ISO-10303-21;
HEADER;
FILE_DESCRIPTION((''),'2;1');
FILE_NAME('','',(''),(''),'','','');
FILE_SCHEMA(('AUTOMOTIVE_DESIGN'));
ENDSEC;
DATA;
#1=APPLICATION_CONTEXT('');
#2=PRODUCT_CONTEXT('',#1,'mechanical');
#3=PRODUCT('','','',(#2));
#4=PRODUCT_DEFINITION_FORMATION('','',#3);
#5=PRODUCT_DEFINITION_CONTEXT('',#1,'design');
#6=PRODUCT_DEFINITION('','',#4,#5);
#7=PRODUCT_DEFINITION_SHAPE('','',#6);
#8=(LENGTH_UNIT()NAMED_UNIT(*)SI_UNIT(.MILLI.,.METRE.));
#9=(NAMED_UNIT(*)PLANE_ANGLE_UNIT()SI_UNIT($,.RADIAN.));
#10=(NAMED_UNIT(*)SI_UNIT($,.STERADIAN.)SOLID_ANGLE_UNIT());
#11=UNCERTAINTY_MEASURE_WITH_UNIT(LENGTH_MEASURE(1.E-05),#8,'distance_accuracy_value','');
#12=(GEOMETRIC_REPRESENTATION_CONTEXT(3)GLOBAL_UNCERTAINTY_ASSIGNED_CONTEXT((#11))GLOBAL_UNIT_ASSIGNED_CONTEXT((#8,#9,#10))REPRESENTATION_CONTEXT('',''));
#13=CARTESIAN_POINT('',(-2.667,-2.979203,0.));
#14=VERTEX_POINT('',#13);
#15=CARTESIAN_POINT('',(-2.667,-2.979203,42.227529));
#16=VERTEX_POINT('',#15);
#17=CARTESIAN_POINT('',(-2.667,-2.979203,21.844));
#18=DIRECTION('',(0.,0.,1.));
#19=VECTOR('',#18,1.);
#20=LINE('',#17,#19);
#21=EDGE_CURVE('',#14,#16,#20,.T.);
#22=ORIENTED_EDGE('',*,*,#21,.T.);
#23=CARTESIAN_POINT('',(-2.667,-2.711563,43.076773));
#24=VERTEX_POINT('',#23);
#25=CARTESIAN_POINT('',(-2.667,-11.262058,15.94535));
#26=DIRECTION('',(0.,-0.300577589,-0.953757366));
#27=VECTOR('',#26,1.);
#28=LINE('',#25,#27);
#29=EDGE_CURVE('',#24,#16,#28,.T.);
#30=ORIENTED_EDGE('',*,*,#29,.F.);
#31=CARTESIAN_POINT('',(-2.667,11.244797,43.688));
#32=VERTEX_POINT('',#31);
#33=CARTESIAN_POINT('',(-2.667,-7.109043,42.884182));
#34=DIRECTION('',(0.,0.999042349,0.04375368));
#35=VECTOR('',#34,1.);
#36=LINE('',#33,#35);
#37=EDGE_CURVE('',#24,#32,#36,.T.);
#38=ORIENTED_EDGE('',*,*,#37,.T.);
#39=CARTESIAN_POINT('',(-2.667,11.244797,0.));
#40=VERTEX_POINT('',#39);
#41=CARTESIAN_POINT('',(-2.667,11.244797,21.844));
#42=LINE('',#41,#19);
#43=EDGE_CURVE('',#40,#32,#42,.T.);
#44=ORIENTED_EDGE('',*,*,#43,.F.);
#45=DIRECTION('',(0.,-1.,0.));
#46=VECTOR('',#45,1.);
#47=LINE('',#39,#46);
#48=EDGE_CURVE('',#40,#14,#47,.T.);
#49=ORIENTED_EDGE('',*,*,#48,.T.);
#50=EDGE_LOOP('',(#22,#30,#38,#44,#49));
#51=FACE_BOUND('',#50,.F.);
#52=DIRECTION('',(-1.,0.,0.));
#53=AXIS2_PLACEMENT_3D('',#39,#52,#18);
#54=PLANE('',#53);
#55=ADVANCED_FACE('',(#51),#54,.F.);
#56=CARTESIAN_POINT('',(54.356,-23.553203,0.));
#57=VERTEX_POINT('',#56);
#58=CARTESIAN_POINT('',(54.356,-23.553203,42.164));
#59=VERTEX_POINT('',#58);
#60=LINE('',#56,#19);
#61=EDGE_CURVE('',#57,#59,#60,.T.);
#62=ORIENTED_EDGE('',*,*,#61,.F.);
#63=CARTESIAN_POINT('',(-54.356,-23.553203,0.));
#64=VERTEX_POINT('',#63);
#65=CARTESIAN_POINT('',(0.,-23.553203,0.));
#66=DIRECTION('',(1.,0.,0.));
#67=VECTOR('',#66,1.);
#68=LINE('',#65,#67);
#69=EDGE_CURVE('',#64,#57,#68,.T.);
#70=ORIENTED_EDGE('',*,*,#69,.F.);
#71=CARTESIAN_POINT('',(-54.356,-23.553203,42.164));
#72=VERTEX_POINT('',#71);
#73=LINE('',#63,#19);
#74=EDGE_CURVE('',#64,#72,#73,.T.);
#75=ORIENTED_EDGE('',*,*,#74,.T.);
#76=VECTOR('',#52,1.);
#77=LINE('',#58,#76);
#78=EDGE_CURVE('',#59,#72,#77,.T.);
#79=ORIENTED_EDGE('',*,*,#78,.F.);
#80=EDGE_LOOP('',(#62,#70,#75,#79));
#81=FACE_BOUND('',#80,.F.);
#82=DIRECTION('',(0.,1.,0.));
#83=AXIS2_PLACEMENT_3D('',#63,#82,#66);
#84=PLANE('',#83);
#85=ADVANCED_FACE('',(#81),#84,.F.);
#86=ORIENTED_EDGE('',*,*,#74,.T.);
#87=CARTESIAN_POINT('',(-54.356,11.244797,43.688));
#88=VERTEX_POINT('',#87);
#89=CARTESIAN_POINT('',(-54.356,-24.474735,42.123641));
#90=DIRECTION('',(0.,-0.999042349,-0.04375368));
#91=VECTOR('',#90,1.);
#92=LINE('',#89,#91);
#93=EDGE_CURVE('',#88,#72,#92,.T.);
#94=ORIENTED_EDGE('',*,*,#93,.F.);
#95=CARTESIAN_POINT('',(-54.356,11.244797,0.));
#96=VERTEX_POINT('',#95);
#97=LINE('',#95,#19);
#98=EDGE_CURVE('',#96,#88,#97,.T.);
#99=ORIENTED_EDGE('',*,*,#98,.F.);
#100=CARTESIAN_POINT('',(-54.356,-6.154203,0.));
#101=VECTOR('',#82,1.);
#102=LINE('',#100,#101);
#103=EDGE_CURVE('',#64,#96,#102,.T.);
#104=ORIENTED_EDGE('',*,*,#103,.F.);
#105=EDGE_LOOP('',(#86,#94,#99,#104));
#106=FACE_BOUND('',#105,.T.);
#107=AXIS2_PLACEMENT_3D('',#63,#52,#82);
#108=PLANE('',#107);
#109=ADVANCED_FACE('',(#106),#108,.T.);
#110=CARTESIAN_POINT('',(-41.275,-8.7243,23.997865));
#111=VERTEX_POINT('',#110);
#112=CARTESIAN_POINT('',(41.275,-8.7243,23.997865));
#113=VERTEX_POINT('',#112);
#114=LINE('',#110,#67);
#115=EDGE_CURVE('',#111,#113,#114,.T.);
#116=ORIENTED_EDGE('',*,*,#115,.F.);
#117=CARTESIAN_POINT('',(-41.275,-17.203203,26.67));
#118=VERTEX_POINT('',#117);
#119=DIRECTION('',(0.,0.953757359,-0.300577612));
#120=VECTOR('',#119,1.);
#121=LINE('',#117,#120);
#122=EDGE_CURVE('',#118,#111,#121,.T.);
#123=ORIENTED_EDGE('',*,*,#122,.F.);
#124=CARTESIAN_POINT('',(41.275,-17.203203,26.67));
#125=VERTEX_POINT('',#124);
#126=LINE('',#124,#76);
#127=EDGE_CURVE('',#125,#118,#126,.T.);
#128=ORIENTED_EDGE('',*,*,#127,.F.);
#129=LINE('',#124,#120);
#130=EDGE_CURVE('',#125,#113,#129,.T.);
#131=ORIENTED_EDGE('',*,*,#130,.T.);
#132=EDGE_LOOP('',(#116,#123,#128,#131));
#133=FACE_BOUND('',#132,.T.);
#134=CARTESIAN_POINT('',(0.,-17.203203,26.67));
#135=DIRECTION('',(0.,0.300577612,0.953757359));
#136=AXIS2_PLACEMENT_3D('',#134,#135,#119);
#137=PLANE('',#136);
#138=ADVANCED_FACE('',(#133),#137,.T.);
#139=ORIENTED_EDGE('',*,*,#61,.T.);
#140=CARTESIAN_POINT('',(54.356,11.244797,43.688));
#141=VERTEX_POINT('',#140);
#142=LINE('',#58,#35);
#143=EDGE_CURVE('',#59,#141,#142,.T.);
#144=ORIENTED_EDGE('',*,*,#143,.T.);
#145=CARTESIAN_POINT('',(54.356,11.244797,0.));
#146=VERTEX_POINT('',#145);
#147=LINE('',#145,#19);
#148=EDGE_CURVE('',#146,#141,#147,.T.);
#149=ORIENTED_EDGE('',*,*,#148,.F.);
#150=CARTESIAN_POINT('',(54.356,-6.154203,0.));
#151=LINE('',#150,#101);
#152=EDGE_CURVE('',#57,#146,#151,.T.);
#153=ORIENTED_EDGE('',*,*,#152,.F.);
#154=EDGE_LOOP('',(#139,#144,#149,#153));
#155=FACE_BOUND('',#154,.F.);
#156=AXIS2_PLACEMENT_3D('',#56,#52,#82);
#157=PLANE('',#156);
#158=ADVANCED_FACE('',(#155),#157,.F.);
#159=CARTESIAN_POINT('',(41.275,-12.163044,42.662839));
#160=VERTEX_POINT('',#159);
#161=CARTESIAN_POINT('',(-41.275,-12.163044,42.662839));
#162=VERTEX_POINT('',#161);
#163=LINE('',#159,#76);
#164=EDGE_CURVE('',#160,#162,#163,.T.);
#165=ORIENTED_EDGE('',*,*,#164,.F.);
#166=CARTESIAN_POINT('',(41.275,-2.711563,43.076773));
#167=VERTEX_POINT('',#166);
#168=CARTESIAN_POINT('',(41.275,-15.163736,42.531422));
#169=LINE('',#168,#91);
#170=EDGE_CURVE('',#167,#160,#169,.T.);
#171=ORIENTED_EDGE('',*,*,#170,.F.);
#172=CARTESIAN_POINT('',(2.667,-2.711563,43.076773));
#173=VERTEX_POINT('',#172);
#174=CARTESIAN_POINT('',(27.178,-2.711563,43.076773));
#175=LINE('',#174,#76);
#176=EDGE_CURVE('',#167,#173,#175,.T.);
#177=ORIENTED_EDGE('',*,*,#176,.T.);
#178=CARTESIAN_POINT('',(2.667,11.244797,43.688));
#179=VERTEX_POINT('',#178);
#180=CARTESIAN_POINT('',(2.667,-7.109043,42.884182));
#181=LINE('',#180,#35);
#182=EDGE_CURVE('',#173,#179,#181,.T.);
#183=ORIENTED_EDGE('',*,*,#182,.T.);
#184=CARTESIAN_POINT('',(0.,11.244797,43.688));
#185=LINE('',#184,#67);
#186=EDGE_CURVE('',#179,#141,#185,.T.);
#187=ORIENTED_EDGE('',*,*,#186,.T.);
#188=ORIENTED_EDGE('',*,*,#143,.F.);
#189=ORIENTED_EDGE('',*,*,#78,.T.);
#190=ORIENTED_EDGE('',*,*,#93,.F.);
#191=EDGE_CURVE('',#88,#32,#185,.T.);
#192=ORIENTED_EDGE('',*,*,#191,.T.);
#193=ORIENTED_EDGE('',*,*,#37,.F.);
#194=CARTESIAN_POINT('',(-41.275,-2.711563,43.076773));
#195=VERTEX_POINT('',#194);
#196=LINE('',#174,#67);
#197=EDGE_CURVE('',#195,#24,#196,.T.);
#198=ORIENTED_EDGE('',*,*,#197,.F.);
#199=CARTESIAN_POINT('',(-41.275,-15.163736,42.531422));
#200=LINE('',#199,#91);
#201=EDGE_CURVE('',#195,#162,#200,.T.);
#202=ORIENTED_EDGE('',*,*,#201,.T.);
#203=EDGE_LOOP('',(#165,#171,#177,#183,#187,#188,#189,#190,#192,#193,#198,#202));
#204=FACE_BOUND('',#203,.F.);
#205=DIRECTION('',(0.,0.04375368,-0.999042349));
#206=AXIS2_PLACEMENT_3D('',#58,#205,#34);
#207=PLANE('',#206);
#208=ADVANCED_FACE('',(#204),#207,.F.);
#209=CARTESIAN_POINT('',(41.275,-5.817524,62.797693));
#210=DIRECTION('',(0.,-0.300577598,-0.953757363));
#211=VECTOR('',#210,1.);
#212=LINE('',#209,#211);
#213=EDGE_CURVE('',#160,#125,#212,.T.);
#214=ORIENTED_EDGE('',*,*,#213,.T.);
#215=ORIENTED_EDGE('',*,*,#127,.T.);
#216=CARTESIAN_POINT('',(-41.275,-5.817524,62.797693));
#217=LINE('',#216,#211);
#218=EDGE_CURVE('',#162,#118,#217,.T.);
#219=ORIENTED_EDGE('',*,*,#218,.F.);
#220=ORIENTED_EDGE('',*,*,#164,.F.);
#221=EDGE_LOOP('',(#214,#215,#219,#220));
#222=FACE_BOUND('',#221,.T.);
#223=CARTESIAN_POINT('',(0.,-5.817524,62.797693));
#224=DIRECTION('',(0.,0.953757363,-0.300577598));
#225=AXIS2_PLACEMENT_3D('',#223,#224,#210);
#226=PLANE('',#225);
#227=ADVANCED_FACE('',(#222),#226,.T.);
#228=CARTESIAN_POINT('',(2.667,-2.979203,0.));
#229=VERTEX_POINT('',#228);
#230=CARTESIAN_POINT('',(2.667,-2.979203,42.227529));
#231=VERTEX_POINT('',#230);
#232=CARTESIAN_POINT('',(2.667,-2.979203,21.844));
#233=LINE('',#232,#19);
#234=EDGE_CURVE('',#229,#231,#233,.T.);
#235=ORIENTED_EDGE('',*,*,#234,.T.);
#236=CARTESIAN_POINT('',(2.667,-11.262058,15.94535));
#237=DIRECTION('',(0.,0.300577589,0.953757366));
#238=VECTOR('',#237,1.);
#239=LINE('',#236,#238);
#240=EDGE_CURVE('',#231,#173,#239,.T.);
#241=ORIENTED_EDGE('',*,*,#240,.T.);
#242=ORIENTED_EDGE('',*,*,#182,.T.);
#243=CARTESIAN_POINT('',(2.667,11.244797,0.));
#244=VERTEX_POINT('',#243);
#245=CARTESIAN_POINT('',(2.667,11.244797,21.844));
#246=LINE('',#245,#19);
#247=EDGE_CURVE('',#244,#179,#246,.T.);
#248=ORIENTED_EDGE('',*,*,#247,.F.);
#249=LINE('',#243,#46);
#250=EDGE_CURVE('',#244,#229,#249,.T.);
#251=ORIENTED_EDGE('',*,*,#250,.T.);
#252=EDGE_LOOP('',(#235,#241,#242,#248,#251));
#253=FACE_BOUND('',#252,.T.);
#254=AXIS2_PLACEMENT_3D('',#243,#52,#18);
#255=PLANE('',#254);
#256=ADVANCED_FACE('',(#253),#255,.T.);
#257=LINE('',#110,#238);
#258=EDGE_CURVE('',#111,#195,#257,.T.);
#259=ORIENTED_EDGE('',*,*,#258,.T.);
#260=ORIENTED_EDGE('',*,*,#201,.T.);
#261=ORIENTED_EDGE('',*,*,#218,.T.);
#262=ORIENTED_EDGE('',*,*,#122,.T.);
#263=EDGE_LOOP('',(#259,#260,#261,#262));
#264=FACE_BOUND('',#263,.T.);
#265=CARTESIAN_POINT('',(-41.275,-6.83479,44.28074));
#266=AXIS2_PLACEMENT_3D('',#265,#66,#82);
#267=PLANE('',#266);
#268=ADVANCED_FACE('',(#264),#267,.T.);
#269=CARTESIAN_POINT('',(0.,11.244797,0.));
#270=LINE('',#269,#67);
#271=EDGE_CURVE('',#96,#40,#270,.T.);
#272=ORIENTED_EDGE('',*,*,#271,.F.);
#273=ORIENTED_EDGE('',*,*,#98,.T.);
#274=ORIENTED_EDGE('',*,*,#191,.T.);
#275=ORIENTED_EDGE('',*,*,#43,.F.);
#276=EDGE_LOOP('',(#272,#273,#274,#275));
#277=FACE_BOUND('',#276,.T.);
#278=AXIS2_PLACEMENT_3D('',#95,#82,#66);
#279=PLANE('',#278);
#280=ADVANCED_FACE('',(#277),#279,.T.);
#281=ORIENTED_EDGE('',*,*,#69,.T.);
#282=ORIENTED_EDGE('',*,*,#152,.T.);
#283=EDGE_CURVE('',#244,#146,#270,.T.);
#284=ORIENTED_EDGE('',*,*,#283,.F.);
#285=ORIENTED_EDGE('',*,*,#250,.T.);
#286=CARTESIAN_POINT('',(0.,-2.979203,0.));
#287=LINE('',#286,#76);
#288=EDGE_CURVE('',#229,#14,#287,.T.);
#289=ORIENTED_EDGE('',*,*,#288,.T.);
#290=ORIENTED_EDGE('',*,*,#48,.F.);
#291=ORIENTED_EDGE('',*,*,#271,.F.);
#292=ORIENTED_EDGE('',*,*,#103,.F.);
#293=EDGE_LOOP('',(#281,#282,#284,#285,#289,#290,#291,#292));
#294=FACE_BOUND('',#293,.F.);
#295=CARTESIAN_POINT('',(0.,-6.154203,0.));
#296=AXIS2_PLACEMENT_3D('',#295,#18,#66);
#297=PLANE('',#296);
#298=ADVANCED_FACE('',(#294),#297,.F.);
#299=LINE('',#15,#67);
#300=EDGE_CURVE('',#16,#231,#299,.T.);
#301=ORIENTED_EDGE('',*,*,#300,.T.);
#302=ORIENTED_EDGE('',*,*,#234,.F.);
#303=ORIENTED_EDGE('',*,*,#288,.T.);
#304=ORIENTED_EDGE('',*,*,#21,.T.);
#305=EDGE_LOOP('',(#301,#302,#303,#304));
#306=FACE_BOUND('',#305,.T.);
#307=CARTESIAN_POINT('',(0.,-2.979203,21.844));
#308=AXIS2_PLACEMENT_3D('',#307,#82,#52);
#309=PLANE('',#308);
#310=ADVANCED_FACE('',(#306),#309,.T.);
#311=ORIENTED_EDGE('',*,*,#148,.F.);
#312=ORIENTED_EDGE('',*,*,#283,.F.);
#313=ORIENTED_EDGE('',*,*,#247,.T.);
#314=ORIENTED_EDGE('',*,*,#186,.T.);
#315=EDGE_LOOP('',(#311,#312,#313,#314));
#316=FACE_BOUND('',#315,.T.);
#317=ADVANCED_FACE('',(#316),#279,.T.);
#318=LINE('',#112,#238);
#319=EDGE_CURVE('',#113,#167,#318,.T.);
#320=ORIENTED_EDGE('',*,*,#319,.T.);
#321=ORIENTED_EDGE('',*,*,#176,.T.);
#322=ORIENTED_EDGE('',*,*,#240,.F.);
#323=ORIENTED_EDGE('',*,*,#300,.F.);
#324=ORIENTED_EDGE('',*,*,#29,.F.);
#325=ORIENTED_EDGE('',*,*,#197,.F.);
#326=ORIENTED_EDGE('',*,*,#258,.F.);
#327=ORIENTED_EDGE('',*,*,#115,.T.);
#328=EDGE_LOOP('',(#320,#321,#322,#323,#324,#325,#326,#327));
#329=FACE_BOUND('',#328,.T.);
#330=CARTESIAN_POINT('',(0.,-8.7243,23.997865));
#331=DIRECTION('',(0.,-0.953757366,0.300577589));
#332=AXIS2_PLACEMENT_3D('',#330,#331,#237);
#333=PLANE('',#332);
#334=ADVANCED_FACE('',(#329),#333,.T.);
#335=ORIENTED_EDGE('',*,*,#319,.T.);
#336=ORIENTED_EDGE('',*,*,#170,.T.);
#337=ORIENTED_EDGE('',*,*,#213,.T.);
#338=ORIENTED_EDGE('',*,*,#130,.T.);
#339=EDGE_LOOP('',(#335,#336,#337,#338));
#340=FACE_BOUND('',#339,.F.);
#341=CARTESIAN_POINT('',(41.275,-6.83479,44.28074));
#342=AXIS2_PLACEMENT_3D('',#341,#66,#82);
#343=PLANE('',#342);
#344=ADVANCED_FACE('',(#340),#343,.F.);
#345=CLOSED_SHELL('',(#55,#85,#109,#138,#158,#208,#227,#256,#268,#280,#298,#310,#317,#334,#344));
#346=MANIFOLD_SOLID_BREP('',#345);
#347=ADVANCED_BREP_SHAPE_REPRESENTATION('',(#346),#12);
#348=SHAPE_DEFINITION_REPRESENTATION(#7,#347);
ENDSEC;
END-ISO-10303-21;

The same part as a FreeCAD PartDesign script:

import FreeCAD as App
import Part
import Sketcher
from FreeCAD import Vector
Q = App.Units.Quantity

doc = App.newDocument("Part")
body = doc.addObject("PartDesign::Body", "Body")

# Sketch on XY plane
sketch1 = doc.addObject("Sketcher::SketchObject", "Sketch")
body.addObject(sketch1)
sketch1.AttachmentSupport = (doc.XY_Plane, [""])
sketch1.MapMode = "FlatFace"
sketch1.addGeometry([
    Part.LineSegment(Vector(-54, 11, 0), Vector(-54, -24, 0)),
    Part.LineSegment(Vector(-54, -24, 0), Vector(54, -24, 0)),
    Part.LineSegment(Vector(54, -24, 0), Vector(54, 11, 0)),
    Part.LineSegment(Vector(54, 11, 0), Vector(-54, 11, 0)),
], False)
sketch1.addConstraint([
    Sketcher.Constraint("Coincident", 0, 2, 1, 1),
    Sketcher.Constraint("Coincident", 1, 2, 2, 1),
    Sketcher.Constraint("Coincident", 2, 2, 3, 1),
    Sketcher.Constraint("Coincident", 3, 2, 0, 1),
    Sketcher.Constraint("Vertical", 0),
    Sketcher.Constraint("Horizontal", 1),
    Sketcher.Constraint("Vertical", 2),
    Sketcher.Constraint("Horizontal", 3),
    Sketcher.Constraint("DistanceX", 1, 1, 1, 2, Q("4.28 in")),
    Sketcher.Constraint("DistanceY", 0, 2, 0, 1, Q("1.37 in")),
    Sketcher.Constraint("DistanceX", 0, 2, -1, 1, Q("2.14 in")),
    Sketcher.Constraint("DistanceY", 0, 2, -1, 1, Q("23.553203 mm")),
])
pad1 = doc.addObject("PartDesign::Pad", "Pad")
body.addObject(pad1)
pad1.Profile = sketch1
pad1.Length = Q("1.72 in")

# Sketch on YZ plane
sketch2 = doc.addObject("Sketcher::SketchObject", "Sketch001")
body.addObject(sketch2)
sketch2.AttachmentSupport = (doc.YZ_Plane, [""])
sketch2.MapMode = "FlatFace"
sketch2.AttachmentOffset = App.Placement(Vector(0, 0, 2.14 * 25.4), App.Rotation())
sketch2.addGeometry([
    Part.LineSegment(Vector(-23.6, 42.2, 0), Vector(11.2, 43.7, 0)),
    Part.LineSegment(Vector(11.2, 43.7, 0), Vector(-23.6, 43.7, 0)),
    Part.LineSegment(Vector(-23.6, 43.7, 0), Vector(-23.6, 42.2, 0)),
], False)
sketch2.addConstraint([
    Sketcher.Constraint("Coincident", 0, 2, 1, 1),
    Sketcher.Constraint("Coincident", 1, 2, 2, 1),
    Sketcher.Constraint("Coincident", 2, 2, 0, 1),
    Sketcher.Constraint("Horizontal", 1),
    Sketcher.Constraint("Vertical", 2),
    Sketcher.Constraint("DistanceX", 1, 2, 1, 1, Q("1.37 in")),
    Sketcher.Constraint("DistanceY", 2, 2, 2, 1, Q("0.06 in")),
    Sketcher.Constraint("DistanceY", -1, 1, 0, 2, Q("1.72 in")),
    Sketcher.Constraint("DistanceX", -1, 1, 0, 2, Q("11.244797 mm")),
])
pocket1 = doc.addObject("PartDesign::Pocket", "Pocket")
body.addObject(pocket1)
pocket1.Profile = sketch2
pocket1.Type = "ThroughAll"

# Sketch on XZ plane
sketch3 = doc.addObject("Sketcher::SketchObject", "Sketch002")
body.addObject(sketch3)
sketch3.AttachmentSupport = (doc.XZ_Plane, [""])
sketch3.MapMode = "FlatFace"
sketch3.AttachmentOffset = App.Placement(Vector(0, 0, -11.244797), App.Rotation())
sketch3.addGeometry([
    Part.LineSegment(Vector(3, 44, 0), Vector(3, 0, 0)),
    Part.LineSegment(Vector(3, 0, 0), Vector(-3, 0, 0)),
    Part.LineSegment(Vector(-3, 0, 0), Vector(-3, 44, 0)),
    Part.LineSegment(Vector(-3, 44, 0), Vector(3, 44, 0)),
], False)
sketch3.addConstraint([
    Sketcher.Constraint("Coincident", 0, 2, 1, 1),
    Sketcher.Constraint("Coincident", 1, 2, 2, 1),
    Sketcher.Constraint("Coincident", 2, 2, 3, 1),
    Sketcher.Constraint("Coincident", 3, 2, 0, 1),
    Sketcher.Constraint("Vertical", 0),
    Sketcher.Constraint("Horizontal", 1),
    Sketcher.Constraint("Vertical", 2),
    Sketcher.Constraint("Horizontal", 3),
    Sketcher.Constraint("Symmetric", 0, 2, 1, 2, -1, 1),
    Sketcher.Constraint("DistanceX", 1, 2, 1, 1, Q("0.21 in")),
    Sketcher.Constraint("DistanceY", 0, 2, 0, 1, Q("1.72 in")),
])
pocket2 = doc.addObject("PartDesign::Pocket", "Pocket001")
body.addObject(pocket2)
pocket2.Profile = sketch3
pocket2.Length = Q("0.56 in")
pocket2.Reversed = True

# Sketch on YZ plane
sketch4 = doc.addObject("Sketcher::SketchObject", "Sketch003")
body.addObject(sketch4)
sketch4.AttachmentSupport = (doc.YZ_Plane, [""])
sketch4.MapMode = "FlatFace"
sketch4.addGeometry([
    Part.LineSegment(Vector(-9, 24, 0), Vector(4, 63, 0)),
    Part.LineSegment(Vector(4, 63, 0), Vector(-6, 63, 0)),
    Part.LineSegment(Vector(-6, 63, 0), Vector(-17, 27, 0)),
    Part.LineSegment(Vector(-17, 27, 0), Vector(-9, 24, 0)),
], False)
sketch4.addConstraint([
    Sketcher.Constraint("Coincident", 0, 2, 1, 1),
    Sketcher.Constraint("Coincident", 1, 2, 2, 1),
    Sketcher.Constraint("Coincident", 2, 2, 3, 1),
    Sketcher.Constraint("Coincident", 3, 2, 0, 1),
    Sketcher.Constraint("Parallel", 0, 2),
    Sketcher.Constraint("Perpendicular", 2, 3),
    Sketcher.Constraint("Distance", 3, Q("0.35 in")),
    Sketcher.Constraint("DistanceY", -1, 1, 2, 2, Q("1.05 in")),
    Sketcher.Constraint("DistanceX", 3, 2, -1, 1, Q("8.7243 mm")),
    Sketcher.Constraint("DistanceY", 3, 2, 0, 2, Q("39.275198 mm")),
    Sketcher.Constraint("DistanceX", -1, 1, 0, 2, Q("3.653318 mm")),
    Sketcher.Constraint("DistanceX", 1, 2, 0, 2, Q("9.470842 mm")),
])
pocket3 = doc.addObject("PartDesign::Pocket", "Pocket002")
body.addObject(pocket3)
pocket3.Profile = sketch4
pocket3.Type = "TwoLengths"
pocket3.Length = Q("1.625 in")
pocket3.Length2 = Q("1.625 in")
pocket3.Reversed = True

doc.recompute()
